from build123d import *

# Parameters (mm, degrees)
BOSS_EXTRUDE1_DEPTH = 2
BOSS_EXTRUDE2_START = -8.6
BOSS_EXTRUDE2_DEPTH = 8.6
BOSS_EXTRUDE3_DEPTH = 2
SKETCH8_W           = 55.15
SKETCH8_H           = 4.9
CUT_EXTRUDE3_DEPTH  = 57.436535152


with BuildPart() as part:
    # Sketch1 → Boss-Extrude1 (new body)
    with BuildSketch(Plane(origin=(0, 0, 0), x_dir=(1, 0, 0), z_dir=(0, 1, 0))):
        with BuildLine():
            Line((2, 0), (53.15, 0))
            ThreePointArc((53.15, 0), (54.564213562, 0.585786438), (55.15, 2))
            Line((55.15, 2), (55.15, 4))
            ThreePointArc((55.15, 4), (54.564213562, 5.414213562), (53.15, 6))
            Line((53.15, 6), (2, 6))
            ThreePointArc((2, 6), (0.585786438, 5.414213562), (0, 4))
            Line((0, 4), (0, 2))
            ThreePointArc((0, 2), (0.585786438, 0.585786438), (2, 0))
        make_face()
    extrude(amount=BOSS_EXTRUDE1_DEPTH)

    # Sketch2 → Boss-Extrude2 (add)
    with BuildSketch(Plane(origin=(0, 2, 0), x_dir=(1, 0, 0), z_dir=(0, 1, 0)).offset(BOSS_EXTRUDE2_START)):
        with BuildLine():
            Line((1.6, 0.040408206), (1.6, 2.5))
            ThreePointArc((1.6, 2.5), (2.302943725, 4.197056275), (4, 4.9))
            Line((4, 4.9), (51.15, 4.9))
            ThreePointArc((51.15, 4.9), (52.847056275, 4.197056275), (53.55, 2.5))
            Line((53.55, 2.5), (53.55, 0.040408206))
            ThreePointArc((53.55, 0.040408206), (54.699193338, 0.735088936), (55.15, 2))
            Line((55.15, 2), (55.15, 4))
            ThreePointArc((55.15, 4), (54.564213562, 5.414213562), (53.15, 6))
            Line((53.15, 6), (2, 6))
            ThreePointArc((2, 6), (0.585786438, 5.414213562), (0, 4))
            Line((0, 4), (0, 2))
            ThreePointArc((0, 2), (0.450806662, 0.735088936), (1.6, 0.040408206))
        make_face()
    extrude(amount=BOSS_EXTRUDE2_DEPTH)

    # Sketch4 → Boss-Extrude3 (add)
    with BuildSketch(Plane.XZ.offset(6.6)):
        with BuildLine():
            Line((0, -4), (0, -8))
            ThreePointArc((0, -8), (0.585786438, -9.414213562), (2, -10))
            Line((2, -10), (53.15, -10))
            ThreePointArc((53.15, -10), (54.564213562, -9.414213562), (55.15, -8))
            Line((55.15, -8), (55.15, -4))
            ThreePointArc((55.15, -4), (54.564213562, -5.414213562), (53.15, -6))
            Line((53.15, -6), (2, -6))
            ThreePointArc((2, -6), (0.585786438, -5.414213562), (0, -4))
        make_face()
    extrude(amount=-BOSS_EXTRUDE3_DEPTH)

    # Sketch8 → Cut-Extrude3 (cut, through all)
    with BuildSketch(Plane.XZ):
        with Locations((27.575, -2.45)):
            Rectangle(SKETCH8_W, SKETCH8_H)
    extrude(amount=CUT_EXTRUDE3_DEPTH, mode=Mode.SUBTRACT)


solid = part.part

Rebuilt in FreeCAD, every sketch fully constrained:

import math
import FreeCAD as App
import Part
import Sketcher
from FreeCAD import Vector

doc = App.newDocument("Part")
params = doc.addObject("Spreadsheet::Sheet", "Params")
for row, (alias, value) in enumerate([
    ("sketch1_radius", "2 mm"),
    ("sketch1_height", "2 mm"),
    ("sketch1_width", "51.15 mm"),
    ("pad1_length", "2 mm"),
    ("sketch2_radius", "2 mm"),
    ("sketch2_radius2", "2.4 mm"),
    ("sketch2_height", "2 mm"),
    ("sketch2_width", "47.15 mm"),
    ("pad2_length", "8.6 mm"),
    ("sketch3_radius", "2 mm"),
    ("sketch3_height", "4 mm"),
    ("sketch3_width", "51.15 mm"),
    ("pad3_length", "2 mm"),
    ("sketch4_height", "4.9 mm"),
    ("sketch4_width", "55.15 mm"),
], start=1):
    params.set(f"A{row}", alias)
    params.set(f"B{row}", "=" + value)
    params.setAlias(f"B{row}", alias)

body = doc.addObject("PartDesign::Body", "Body")

# Sketch on XZ plane
sketch1 = body.newObject("Sketcher::SketchObject", "Sketch")
sketch1.AttachmentSupport = (doc.getObject("XZ_Plane"), [""])
sketch1.MapMode = "FlatFace"
sketch1.addGeometry(Part.LineSegment(Vector(2, 0, 0), Vector(53.15, 0, 0)), False)
sketch1.addGeometry(Part.ArcOfCircle(Part.Circle(Vector(53.15, -2, 0), Vector(0, 0, 1), 2), math.radians(0), math.radians(90)), False)
sketch1.addGeometry(Part.LineSegment(Vector(55.15, -2, 0), Vector(55.15, -4, 0)), False)
sketch1.addGeometry(Part.ArcOfCircle(Part.Circle(Vector(53.15, -4, 0), Vector(0, 0, 1), 2), math.radians(-90), math.radians(0)), False)
sketch1.addGeometry(Part.LineSegment(Vector(53.15, -6, 0), Vector(2, -6, 0)), False)
sketch1.addGeometry(Part.ArcOfCircle(Part.Circle(Vector(2, -4, 0), Vector(0, 0, 1), 2), math.radians(-180), math.radians(-90)), False)
sketch1.addGeometry(Part.LineSegment(Vector(0, -4, 0), Vector(0, -2, 0)), False)
sketch1.addGeometry(Part.ArcOfCircle(Part.Circle(Vector(2, -2, 0), Vector(0, 0, 1), 2), math.radians(90), math.radians(180)), False)
sketch1.addConstraint(Sketcher.Constraint("Tangent", 0, 2, 1, 2))
sketch1.addConstraint(Sketcher.Constraint("Tangent", 1, 1, 2, 1))
sketch1.addConstraint(Sketcher.Constraint("Tangent", 2, 2, 3, 2))
sketch1.addConstraint(Sketcher.Constraint("Tangent", 3, 1, 4, 1))
sketch1.addConstraint(Sketcher.Constraint("Tangent", 4, 2, 5, 2))
sketch1.addConstraint(Sketcher.Constraint("Tangent", 5, 1, 6, 1))
sketch1.addConstraint(Sketcher.Constraint("Tangent", 6, 2, 7, 2))
sketch1.addConstraint(Sketcher.Constraint("Tangent", 7, 1, 0, 1))
sketch1.addConstraint(Sketcher.Constraint("Horizontal", 0))
sketch1.addConstraint(Sketcher.Constraint("Vertical", 2))
sketch1.addConstraint(Sketcher.Constraint("Horizontal", 4))
sketch1.addConstraint(Sketcher.Constraint("Vertical", 6))
sketch1.addConstraint(Sketcher.Constraint("Equal", 1, 3))
sketch1.addConstraint(Sketcher.Constraint("Equal", 3, 5))
sketch1.addConstraint(Sketcher.Constraint("Equal", 5, 7))
sketch1.addConstraint(Sketcher.Constraint("PointOnObject", 0, 2, -1))
sketch1.addConstraint(Sketcher.Constraint("PointOnObject", 5, 1, -2))
sketch1.addConstraint(Sketcher.Constraint("Radius", 1, 2.0))
sketch1.addConstraint(Sketcher.Constraint("DistanceY", 2, 2, 2, 1, 2.0))
sketch1.addConstraint(Sketcher.Constraint("DistanceX", 0, 1, 0, 2, 51.15))
sketch1.setExpression("Constraints[17]", "Params.sketch1_radius")
sketch1.setExpression("Constraints[18]", "Params.sketch1_height")
sketch1.setExpression("Constraints[19]", "Params.sketch1_width")
pad1 = body.newObject("PartDesign::Pad", "Pad")
pad1.Profile = sketch1
pad1.setExpression("Length", "Params.pad1_length")
pad1.Reversed = True

# Sketch on XZ plane
sketch2 = body.newObject("Sketcher::SketchObject", "Sketch001")
sketch2.AttachmentSupport = (doc.getObject("XZ_Plane"), [""])
sketch2.MapMode = "FlatFace"
sketch2.AttachmentOffset = App.Placement(Vector(0, 0, 6.6), App.Rotation())
sketch2.addGeometry(Part.LineSegment(Vector(1.6, -0.040408, 0), Vector(1.6, -2.5, 0)), False)
sketch2.addGeometry(Part.ArcOfCircle(Part.Circle(Vector(4, -2.5, 0), Vector(0, 0, 1), 2.4), math.radians(180), math.radians(270)), False)
sketch2.addGeometry(Part.LineSegment(Vector(4, -4.9, 0), Vector(51.15, -4.9, 0)), False)
sketch2.addGeometry(Part.ArcOfCircle(Part.Circle(Vector(51.15, -2.5, 0), Vector(0, 0, 1), 2.4), math.radians(-90), math.radians(0)), False)
sketch2.addGeometry(Part.LineSegment(Vector(53.55, -2.5, 0), Vector(53.55, -0.040408, 0)), False)
sketch2.addGeometry(Part.ArcOfCircle(Part.Circle(Vector(53.15, -2, 0), Vector(0, 0, 1), 2), math.radians(0), math.radians(78.463041)), False)
sketch2.addGeometry(Part.LineSegment(Vector(55.15, -2, 0), Vector(55.15, -4, 0)), False)
sketch2.addGeometry(Part.ArcOfCircle(Part.Circle(Vector(53.15, -4, 0), Vector(0, 0, 1), 2), math.radians(-90), math.radians(0)), False)
sketch2.addGeometry(Part.LineSegment(Vector(53.15, -6, 0), Vector(2, -6, 0)), False)
sketch2.addGeometry(Part.ArcOfCircle(Part.Circle(Vector(2, -4, 0), Vector(0, 0, 1), 2), math.radians(-180), math.radians(-90)), False)
sketch2.addGeometry(Part.LineSegment(Vector(0, -4, 0), Vector(0, -2, 0)), False)
sketch2.addGeometry(Part.ArcOfCircle(Part.Circle(Vector(2, -2, 0), Vector(0, 0, 1), 2), math.radians(101.536959), math.radians(180)), False)
sketch2.addConstraint(Sketcher.Constraint("Tangent", 0, 2, 1, 1))
sketch2.addConstraint(Sketcher.Constraint("Tangent", 1, 2, 2, 1))
sketch2.addConstraint(Sketcher.Constraint("Tangent", 2, 2, 3, 1))
sketch2.addConstraint(Sketcher.Constraint("Tangent", 3, 2, 4, 1))
sketch2.addConstraint(Sketcher.Constraint("Coincident", 4, 2, 5, 2))
sketch2.addConstraint(Sketcher.Constraint("Tangent", 5, 1, 6, 1))
sketch2.addConstraint(Sketcher.Constraint("Tangent", 6, 2, 7, 2))
sketch2.addConstraint(Sketcher.Constraint("Tangent", 7, 1, 8, 1))
sketch2.addConstraint(Sketcher.Constraint("Tangent", 8, 2, 9, 2))
sketch2.addConstraint(Sketcher.Constraint("Tangent", 9, 1, 10, 1))
sketch2.addConstraint(Sketcher.Constraint("Tangent", 10, 2, 11, 2))
sketch2.addConstraint(Sketcher.Constraint("Coincident", 11, 1, 0, 1))
sketch2.addConstraint(Sketcher.Constraint("Vertical", 0))
sketch2.addConstraint(Sketcher.Constraint("Horizontal", 2))
sketch2.addConstraint(Sketcher.Constraint("Vertical", 4))
sketch2.addConstraint(Sketcher.Constraint("Vertical", 6))
sketch2.addConstraint(Sketcher.Constraint("Horizontal", 8))
sketch2.addConstraint(Sketcher.Constraint("Vertical", 10))
sketch2.addConstraint(Sketcher.Constraint("Equal", 1, 3))
sketch2.addConstraint(Sketcher.Constraint("Equal", 5, 7))
sketch2.addConstraint(Sketcher.Constraint("Equal", 7, 9))
sketch2.addConstraint(Sketcher.Constraint("Equal", 9, 11))
sketch2.addConstraint(Sketcher.Constraint("PointOnObject", 9, 1, -2))
sketch2.addConstraint(Sketcher.Constraint("Horizontal", 5, 3, 11, 3))
sketch2.addConstraint(Sketcher.Constraint("Horizontal", 4, 2, 11, 1))
sketch2.addConstraint(Sketcher.Constraint("Radius", 5, 2.0))
sketch2.addConstraint(Sketcher.Constraint("Radius", 1, 2.4))
sketch2.addConstraint(Sketcher.Constraint("DistanceY", 6, 2, 6, 1, 2.0))
sketch2.addConstraint(Sketcher.Constraint("DistanceX", -1, 1, 1, 3, 4.0))
sketch2.addConstraint(Sketcher.Constraint("DistanceY", 5, 3, -1, 1, 2.0))
sketch2.addConstraint(Sketcher.Constraint("DistanceX", 2, 1, 2, 2, 47.15))
sketch2.addConstraint(Sketcher.Constraint("DistanceY", 1, 3, -1, 1, 2.5))
sketch2.setExpression("Constraints[25]", "Params.sketch2_radius")
sketch2.setExpression("Constraints[26]", "Params.sketch2_radius2")
sketch2.setExpression("Constraints[27]", "Params.sketch2_height")
sketch2.setExpression("Constraints[30]", "Params.sketch2_width")
pad2 = body.newObject("PartDesign::Pad", "Pad001")
pad2.Profile = sketch2
pad2.setExpression("Length", "Params.pad2_length")
pad2.Reversed = True

# Sketch on XZ plane
sketch3 = body.newObject("Sketcher::SketchObject", "Sketch002")
sketch3.AttachmentSupport = (doc.getObject("XZ_Plane"), [""])
sketch3.MapMode = "FlatFace"
sketch3.AttachmentOffset = App.Placement(Vector(0, 0, 6.6), App.Rotation())
sketch3.addGeometry(Part.LineSegment(Vector(0, -4, 0), Vector(0, -8, 0)), False)
sketch3.addGeometry(Part.ArcOfCircle(Part.Circle(Vector(2, -8, 0), Vector(0, 0, 1), 2), math.radians(-180), math.radians(-90)), False)
sketch3.addGeometry(Part.LineSegment(Vector(2, -10, 0), Vector(53.15, -10, 0)), False)
sketch3.addGeometry(Part.ArcOfCircle(Part.Circle(Vector(53.15, -8, 0), Vector(0, 0, 1), 2), math.radians(-90), math.radians(0)), False)
sketch3.addGeometry(Part.LineSegment(Vector(55.15, -8, 0), Vector(55.15, -4, 0)), False)
sketch3.addGeometry(Part.ArcOfCircle(Part.Circle(Vector(53.15, -4, 0), Vector(0, 0, 1), 2), math.radians(-90), math.radians(0)), False)
sketch3.addGeometry(Part.LineSegment(Vector(53.15, -6, 0), Vector(2, -6, 0)), False)
sketch3.addGeometry(Part.ArcOfCircle(Part.Circle(Vector(2, -4, 0), Vector(0, 0, 1), 2), math.radians(-180), math.radians(-90)), False)
sketch3.addConstraint(Sketcher.Constraint("Tangent", 0, 2, 1, 1))
sketch3.addConstraint(Sketcher.Constraint("Tangent", 1, 2, 2, 1))
sketch3.addConstraint(Sketcher.Constraint("Tangent", 2, 2, 3, 1))
sketch3.addConstraint(Sketcher.Constraint("Tangent", 3, 2, 4, 1))
sketch3.addConstraint(Sketcher.Constraint("Tangent", 4, 2, 5, 2))
sketch3.addConstraint(Sketcher.Constraint("Tangent", 5, 1, 6, 1))
sketch3.addConstraint(Sketcher.Constraint("Tangent", 6, 2, 7, 2))
sketch3.addConstraint(Sketcher.Constraint("Tangent", 7, 1, 0, 1))
sketch3.addConstraint(Sketcher.Constraint("Vertical", 0))
sketch3.addConstraint(Sketcher.Constraint("Horizontal", 2))
sketch3.addConstraint(Sketcher.Constraint("Vertical", 4))
sketch3.addConstraint(Sketcher.Constraint("Horizontal", 6))
sketch3.addConstraint(Sketcher.Constraint("Equal", 1, 3))
sketch3.addConstraint(Sketcher.Constraint("Equal", 3, 5))
sketch3.addConstraint(Sketcher.Constraint("Equal", 5, 7))
sketch3.addConstraint(Sketcher.Constraint("PointOnObject", 0, 2, -2))
sketch3.addConstraint(Sketcher.Constraint("Radius", 1, 2.0))
sketch3.addConstraint(Sketcher.Constraint("DistanceY", 0, 2, 0, 1, 4.0))
sketch3.addConstraint(Sketcher.Constraint("DistanceY", 1, 3, -1, 1, 8.0))
sketch3.addConstraint(Sketcher.Constraint("DistanceX", 2, 1, 2, 2, 51.15))
sketch3.setExpression("Constraints[16]", "Params.sketch3_radius")
sketch3.setExpression("Constraints[17]", "Params.sketch3_height")
sketch3.setExpression("Constraints[19]", "Params.sketch3_width")
pad3 = body.newObject("PartDesign::Pad", "Pad002")
pad3.Profile = sketch3
pad3.setExpression("Length", "Params.pad3_length")
pad3.Reversed = True

# Sketch on XZ plane
sketch4 = body.newObject("Sketcher::SketchObject", "Sketch003")
sketch4.AttachmentSupport = (doc.getObject("XZ_Plane"), [""])
sketch4.MapMode = "FlatFace"
sketch4.addGeometry(Part.LineSegment(Vector(0, 0, 0), Vector(0, -4.9, 0)), False)
sketch4.addGeometry(Part.LineSegment(Vector(0, -4.9, 0), Vector(55.15, -4.9, 0)), False)
sketch4.addGeometry(Part.LineSegment(Vector(55.15, -4.9, 0), Vector(55.15, 0, 0)), False)
sketch4.addGeometry(Part.LineSegment(Vector(55.15, 0, 0), Vector(0, 0, 0)), False)
sketch4.addConstraint(Sketcher.Constraint("Coincident", 0, 2, 1, 1))
sketch4.addConstraint(Sketcher.Constraint("Coincident", 1, 2, 2, 1))
sketch4.addConstraint(Sketcher.Constraint("Coincident", 2, 2, 3, 1))
sketch4.addConstraint(Sketcher.Constraint("Coincident", 3, 2, 0, 1))
sketch4.addConstraint(Sketcher.Constraint("Vertical", 0))
sketch4.addConstraint(Sketcher.Constraint("Horizontal", 1))
sketch4.addConstraint(Sketcher.Constraint("Vertical", 2))
sketch4.addConstraint(Sketcher.Constraint("Horizontal", 3))
sketch4.addConstraint(Sketcher.Constraint("Coincident", 3, 2, -1, 1))
sketch4.addConstraint(Sketcher.Constraint("DistanceY", 0, 2, 0, 1, 4.9))
sketch4.addConstraint(Sketcher.Constraint("DistanceX", 1, 1, 1, 2, 55.15))
sketch4.setExpression("Constraints[9]", "Params.sketch4_height")
sketch4.setExpression("Constraints[10]", "Params.sketch4_width")
pocket1 = body.newObject("PartDesign::Pocket", "Pocket")
pocket1.Profile = sketch4
pocket1.Type = "ThroughAll"
pocket1.Reversed = True

doc.recompute()
